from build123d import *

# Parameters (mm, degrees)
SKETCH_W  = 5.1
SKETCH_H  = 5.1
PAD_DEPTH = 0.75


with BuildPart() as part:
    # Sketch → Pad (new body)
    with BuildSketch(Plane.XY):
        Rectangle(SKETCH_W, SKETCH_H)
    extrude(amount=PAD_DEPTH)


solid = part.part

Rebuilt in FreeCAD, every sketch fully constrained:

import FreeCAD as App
import Part
import Sketcher

doc = App.newDocument("Part")
body = doc.addObject("PartDesign::Body", "Body")

sketch1 = body.newObject("Sketcher::SketchObject", "Sketch")
sketch1.AttachmentSupport = (doc.getObject("XY_Plane"), [""])
sketch1.MapMode = "FlatFace"
sketch1.addGeometry(Part.LineSegment(App.Vector(-3, 3, 0), App.Vector(-3, -3, 0)), False)
sketch1.addGeometry(Part.LineSegment(App.Vector(-3, -3, 0), App.Vector(3, -3, 0)), False)
sketch1.addGeometry(Part.LineSegment(App.Vector(3, -3, 0), App.Vector(3, 3, 0)), False)
sketch1.addGeometry(Part.LineSegment(App.Vector(3, 3, 0), App.Vector(-3, 3, 0)), False)
sketch1.addConstraint(Sketcher.Constraint("Coincident", 0, 2, 1, 1))
sketch1.addConstraint(Sketcher.Constraint("Coincident", 1, 2, 2, 1))
sketch1.addConstraint(Sketcher.Constraint("Coincident", 2, 2, 3, 1))
sketch1.addConstraint(Sketcher.Constraint("Coincident", 3, 2, 0, 1))
sketch1.addConstraint(Sketcher.Constraint("Vertical", 0))
sketch1.addConstraint(Sketcher.Constraint("Horizontal", 1))
sketch1.addConstraint(Sketcher.Constraint("Vertical", 2))
sketch1.addConstraint(Sketcher.Constraint("Horizontal", 3))
sketch1.addConstraint(Sketcher.Constraint("Symmetric", 0, 2, 2, 2, -1, 1))
sketch1.addConstraint(Sketcher.Constraint("Equal", 3, 0))
sketch1.addConstraint(Sketcher.Constraint("DistanceX", 1, 1, 1, 2, 5.1))
pad1 = body.newObject("PartDesign::Pad", "Pad")
pad1.Profile = sketch1
pad1.Length = 0.75

doc.recompute()
